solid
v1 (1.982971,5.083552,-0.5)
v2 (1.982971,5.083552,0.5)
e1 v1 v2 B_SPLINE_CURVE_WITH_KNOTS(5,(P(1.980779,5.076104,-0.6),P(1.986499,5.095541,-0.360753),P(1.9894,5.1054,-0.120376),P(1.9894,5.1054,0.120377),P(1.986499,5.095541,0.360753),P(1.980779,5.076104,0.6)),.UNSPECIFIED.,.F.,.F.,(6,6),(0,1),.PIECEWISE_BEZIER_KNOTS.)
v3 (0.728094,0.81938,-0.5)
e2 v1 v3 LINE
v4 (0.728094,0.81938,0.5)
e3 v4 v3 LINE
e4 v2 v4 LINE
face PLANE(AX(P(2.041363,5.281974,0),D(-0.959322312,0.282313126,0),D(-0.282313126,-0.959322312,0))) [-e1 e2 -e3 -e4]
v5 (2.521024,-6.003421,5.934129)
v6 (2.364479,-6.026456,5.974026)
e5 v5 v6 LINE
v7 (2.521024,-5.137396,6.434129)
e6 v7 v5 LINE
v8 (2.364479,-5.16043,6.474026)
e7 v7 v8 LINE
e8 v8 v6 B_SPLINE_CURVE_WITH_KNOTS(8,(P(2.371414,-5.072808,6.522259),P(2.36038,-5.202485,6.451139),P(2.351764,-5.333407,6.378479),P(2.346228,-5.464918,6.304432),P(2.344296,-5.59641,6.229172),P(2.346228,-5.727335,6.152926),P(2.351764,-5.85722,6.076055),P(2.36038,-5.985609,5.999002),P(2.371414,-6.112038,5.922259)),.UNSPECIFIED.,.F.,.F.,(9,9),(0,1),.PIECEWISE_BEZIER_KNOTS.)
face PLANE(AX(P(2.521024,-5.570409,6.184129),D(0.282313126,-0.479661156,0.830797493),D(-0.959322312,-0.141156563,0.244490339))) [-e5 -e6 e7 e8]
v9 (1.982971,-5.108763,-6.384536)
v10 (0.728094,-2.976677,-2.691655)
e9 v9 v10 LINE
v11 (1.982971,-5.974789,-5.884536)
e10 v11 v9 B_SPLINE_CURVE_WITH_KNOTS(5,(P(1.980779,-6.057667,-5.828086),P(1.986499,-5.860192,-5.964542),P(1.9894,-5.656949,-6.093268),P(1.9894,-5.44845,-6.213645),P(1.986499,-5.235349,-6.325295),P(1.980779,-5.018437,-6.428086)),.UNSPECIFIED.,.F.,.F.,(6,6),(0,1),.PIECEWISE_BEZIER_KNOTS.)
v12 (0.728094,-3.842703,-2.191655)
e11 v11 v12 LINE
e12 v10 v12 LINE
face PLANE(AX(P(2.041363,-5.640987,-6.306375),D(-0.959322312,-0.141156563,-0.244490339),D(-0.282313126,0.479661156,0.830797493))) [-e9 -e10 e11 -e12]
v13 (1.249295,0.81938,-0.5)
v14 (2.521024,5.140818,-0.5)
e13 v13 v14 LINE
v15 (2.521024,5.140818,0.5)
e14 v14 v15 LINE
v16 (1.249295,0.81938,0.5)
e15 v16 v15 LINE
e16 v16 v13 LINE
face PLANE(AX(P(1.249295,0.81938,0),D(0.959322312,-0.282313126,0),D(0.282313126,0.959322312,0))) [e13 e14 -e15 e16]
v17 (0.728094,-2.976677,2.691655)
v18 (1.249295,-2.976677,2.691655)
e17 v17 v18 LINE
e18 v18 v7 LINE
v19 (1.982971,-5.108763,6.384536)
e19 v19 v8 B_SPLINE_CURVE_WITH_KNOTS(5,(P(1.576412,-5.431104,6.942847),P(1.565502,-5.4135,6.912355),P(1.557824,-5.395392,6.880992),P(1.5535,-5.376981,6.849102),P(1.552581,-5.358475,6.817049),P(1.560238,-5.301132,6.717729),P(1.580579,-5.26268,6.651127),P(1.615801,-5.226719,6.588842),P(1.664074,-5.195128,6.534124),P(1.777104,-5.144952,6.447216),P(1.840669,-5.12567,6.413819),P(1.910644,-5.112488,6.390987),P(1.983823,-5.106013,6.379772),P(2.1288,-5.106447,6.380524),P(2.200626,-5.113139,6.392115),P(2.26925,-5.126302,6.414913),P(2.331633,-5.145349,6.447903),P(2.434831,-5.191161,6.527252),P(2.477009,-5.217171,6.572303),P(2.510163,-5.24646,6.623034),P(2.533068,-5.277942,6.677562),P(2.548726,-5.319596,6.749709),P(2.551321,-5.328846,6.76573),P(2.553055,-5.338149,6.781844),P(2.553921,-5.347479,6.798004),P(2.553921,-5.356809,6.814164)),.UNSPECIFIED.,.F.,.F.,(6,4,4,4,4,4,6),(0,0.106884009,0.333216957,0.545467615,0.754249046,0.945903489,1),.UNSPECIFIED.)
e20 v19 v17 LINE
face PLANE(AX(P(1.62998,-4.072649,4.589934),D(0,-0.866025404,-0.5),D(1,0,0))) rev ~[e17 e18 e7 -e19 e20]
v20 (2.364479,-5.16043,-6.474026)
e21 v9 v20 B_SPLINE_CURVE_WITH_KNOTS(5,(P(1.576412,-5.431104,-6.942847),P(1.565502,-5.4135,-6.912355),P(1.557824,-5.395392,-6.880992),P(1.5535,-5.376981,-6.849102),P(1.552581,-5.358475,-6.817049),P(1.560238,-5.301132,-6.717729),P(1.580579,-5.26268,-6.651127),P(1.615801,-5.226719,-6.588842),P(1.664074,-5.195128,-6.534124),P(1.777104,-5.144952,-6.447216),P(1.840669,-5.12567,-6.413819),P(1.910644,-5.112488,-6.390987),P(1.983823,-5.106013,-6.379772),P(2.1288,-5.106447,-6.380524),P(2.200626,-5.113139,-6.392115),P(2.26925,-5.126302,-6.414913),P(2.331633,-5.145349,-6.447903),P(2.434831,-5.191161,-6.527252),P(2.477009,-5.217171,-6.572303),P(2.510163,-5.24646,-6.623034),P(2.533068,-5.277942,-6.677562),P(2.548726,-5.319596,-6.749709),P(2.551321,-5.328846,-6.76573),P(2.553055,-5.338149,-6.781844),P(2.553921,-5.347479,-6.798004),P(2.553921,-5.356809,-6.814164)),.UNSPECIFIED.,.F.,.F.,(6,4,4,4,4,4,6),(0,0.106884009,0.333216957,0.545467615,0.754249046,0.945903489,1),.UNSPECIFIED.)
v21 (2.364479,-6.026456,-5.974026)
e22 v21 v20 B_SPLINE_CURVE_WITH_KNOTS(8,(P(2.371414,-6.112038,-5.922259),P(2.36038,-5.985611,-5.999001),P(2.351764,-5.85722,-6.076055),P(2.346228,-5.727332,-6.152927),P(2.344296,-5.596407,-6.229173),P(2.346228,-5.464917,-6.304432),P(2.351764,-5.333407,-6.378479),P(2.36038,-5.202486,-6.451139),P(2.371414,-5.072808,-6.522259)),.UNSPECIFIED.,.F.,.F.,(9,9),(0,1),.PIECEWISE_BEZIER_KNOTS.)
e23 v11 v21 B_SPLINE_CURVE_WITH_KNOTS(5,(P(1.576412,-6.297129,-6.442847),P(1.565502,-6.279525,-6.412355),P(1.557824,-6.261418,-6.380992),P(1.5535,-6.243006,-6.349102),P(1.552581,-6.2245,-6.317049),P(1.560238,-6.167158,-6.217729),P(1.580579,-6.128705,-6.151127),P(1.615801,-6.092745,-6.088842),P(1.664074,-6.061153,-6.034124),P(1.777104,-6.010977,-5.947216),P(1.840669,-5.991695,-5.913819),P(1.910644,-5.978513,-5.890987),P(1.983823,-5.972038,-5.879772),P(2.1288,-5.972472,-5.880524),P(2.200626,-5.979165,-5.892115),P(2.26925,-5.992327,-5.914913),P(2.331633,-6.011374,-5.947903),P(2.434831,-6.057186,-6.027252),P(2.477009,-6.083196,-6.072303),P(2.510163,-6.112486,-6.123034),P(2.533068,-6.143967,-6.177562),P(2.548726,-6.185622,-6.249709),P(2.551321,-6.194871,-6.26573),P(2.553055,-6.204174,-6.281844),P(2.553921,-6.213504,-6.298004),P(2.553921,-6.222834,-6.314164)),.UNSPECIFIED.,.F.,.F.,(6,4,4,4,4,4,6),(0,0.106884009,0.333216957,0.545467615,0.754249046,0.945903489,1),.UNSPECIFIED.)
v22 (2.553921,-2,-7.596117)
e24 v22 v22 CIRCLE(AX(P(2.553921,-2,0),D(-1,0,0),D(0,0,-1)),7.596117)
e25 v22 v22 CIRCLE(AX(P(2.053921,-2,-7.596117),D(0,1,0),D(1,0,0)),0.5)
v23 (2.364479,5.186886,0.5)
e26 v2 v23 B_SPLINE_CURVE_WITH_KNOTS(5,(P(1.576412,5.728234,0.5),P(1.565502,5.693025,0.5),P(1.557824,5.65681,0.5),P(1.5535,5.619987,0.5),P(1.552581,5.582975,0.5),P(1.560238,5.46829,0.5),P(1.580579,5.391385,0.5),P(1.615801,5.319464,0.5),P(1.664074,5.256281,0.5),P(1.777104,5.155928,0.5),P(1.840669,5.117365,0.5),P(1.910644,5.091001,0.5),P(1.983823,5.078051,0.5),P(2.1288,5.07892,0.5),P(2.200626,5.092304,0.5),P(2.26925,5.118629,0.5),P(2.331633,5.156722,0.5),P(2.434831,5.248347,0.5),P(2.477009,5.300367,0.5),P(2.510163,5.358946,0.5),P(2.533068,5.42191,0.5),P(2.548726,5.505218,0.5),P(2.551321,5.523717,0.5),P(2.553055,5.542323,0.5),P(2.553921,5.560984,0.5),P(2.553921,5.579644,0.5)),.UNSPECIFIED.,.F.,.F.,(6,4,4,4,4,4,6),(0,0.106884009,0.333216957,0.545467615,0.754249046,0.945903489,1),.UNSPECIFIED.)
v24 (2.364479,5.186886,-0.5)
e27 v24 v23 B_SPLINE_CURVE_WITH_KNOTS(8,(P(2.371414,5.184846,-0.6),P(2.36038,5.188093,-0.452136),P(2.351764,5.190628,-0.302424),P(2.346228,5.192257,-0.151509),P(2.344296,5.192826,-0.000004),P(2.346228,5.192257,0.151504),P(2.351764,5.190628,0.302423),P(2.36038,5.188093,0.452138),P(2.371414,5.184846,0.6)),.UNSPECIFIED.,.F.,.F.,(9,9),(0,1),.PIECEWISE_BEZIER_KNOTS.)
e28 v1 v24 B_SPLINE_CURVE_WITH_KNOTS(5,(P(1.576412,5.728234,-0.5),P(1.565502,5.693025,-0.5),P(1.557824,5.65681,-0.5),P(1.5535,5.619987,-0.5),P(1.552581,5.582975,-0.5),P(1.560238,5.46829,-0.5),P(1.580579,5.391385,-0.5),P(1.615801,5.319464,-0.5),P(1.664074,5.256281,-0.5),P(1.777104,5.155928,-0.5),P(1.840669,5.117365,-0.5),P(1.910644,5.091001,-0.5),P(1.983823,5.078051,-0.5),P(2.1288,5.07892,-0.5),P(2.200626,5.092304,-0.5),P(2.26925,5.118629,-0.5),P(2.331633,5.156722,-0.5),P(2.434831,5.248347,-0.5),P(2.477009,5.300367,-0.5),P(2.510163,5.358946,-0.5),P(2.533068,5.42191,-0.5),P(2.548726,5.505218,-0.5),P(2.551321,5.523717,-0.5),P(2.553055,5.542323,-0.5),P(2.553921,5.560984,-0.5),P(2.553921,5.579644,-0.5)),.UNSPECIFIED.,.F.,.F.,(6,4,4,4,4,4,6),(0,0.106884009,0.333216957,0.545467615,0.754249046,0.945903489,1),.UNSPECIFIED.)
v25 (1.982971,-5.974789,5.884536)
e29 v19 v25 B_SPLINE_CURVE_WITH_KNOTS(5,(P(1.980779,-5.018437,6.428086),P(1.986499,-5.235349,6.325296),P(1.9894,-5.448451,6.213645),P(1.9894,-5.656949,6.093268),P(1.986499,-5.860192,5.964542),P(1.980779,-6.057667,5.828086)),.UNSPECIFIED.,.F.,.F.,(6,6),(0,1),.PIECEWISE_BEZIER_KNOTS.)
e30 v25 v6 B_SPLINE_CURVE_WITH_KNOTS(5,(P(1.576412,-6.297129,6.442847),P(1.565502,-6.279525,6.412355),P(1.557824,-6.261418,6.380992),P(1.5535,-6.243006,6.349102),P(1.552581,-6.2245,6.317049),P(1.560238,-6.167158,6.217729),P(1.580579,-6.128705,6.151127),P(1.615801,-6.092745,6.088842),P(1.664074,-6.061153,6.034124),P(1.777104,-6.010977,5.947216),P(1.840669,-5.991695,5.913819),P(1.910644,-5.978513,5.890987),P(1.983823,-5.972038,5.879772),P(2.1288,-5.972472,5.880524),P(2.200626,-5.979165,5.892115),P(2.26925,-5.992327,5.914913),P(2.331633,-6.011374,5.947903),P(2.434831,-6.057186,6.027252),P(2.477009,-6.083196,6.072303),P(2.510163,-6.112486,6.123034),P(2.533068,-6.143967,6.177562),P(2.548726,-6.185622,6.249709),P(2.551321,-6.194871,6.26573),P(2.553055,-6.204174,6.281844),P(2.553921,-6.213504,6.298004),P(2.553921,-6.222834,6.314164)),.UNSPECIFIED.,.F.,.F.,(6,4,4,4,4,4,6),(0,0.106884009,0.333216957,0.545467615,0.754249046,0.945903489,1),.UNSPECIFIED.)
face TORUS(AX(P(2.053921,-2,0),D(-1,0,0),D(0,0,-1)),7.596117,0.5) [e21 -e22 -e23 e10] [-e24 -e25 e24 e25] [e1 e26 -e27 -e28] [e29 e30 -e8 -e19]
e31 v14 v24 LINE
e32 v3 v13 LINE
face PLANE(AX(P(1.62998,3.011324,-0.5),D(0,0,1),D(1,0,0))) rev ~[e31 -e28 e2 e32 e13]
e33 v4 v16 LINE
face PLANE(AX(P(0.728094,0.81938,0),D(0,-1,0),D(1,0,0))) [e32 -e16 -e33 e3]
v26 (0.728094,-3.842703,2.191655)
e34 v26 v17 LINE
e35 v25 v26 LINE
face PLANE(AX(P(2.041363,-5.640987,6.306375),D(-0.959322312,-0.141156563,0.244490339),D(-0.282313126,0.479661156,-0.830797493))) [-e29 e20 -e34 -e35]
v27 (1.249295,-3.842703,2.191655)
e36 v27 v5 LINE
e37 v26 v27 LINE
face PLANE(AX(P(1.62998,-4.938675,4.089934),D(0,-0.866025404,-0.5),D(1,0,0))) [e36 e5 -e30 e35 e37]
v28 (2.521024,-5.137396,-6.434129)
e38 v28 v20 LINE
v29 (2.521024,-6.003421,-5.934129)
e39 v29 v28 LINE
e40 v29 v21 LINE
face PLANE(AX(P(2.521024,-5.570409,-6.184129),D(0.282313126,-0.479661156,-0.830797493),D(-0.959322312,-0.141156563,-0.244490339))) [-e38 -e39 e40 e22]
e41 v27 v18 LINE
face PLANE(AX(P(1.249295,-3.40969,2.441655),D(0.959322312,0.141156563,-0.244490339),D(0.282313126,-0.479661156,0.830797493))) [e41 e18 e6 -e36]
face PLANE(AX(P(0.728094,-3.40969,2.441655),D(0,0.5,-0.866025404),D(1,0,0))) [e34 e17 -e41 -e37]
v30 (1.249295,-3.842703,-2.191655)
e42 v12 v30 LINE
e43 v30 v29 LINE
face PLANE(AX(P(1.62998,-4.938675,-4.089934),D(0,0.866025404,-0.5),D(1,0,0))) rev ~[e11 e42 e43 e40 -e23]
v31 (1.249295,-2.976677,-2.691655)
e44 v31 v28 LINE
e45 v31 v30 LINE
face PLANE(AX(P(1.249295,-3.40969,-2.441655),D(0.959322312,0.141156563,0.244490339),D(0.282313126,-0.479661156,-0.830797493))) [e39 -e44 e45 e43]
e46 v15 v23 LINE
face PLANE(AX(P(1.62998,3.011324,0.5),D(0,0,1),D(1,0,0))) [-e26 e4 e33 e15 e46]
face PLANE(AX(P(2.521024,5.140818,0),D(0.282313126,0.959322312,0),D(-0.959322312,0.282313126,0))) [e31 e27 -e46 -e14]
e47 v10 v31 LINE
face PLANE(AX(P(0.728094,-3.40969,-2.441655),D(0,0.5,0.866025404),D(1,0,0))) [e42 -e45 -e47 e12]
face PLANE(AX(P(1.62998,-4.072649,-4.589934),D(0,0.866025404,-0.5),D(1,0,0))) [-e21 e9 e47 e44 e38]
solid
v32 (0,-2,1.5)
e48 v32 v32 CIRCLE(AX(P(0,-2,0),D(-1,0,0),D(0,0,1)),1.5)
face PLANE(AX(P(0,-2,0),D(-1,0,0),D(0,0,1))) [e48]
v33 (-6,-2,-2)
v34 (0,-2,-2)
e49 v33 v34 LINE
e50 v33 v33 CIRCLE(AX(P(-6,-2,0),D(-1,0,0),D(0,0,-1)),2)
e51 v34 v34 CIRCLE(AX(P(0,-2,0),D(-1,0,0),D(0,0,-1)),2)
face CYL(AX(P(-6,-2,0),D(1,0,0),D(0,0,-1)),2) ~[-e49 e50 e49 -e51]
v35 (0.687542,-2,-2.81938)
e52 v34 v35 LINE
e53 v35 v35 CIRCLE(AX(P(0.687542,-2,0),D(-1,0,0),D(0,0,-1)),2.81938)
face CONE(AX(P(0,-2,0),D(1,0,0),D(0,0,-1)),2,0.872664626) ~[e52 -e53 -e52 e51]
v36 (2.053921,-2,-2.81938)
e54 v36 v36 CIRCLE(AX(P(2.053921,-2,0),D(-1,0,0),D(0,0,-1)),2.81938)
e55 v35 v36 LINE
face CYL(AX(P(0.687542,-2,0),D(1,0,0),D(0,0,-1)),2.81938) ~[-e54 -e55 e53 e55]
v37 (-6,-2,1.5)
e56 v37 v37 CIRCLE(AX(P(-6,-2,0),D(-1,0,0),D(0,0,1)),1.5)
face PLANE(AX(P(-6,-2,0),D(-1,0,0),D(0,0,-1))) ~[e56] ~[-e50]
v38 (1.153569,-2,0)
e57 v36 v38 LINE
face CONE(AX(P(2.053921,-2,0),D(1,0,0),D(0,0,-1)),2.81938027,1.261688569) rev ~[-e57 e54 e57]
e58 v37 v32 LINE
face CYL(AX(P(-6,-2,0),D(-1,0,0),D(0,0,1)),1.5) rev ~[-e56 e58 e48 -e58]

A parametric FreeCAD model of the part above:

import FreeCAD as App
import Part
import Sketcher

V = App.Vector
Q = App.Units.Quantity

doc = App.newDocument("Part")
body = doc.addObject("PartDesign::Body", "Body")

sketch1 = body.newObject("Sketcher::SketchObject", "Sketch")
sketch1.AttachmentSupport = (doc.getObject("XY_Plane"), [""])
sketch1.MapMode = "FlatFace"
sketch1.addGeometry(Part.LineSegment(V(0, 0, 0), V(-6, 0, 0)), False)
sketch1.addGeometry(Part.LineSegment(V(-6, 0, 0), V(-6, -2, 0)), False)
sketch1.addGeometry(Part.LineSegment(V(-6, -2, 0), V(1.2, -2, 0)), False)
sketch1.addGeometry(Part.LineSegment(V(1.2, -2, 0), V(2.1, 0.8, 0)), False)
sketch1.addGeometry(Part.LineSegment(V(2.1, 0.8, 0), V(0.7, 0.8, 0)), False)
sketch1.addGeometry(Part.LineSegment(V(0.7, 0.8, 0), V(0, 0, 0)), False)
sketch1.addGeometry(Part.LineSegment(V(2.1, -2, 0), V(-6, -2, 0)), True)
sketch1.addConstraint(Sketcher.Constraint("Coincident", 0, 2, 1, 1))
sketch1.addConstraint(Sketcher.Constraint("Coincident", 1, 2, 2, 1))
sketch1.addConstraint(Sketcher.Constraint("Coincident", 2, 2, 3, 1))
sketch1.addConstraint(Sketcher.Constraint("Coincident", 3, 2, 4, 1))
sketch1.addConstraint(Sketcher.Constraint("Coincident", 4, 2, 5, 1))
sketch1.addConstraint(Sketcher.Constraint("Coincident", 5, 2, 0, 1))
sketch1.addConstraint(Sketcher.Constraint("Horizontal", 0))
sketch1.addConstraint(Sketcher.Constraint("Vertical", 1))
sketch1.addConstraint(Sketcher.Constraint("Horizontal", 2))
sketch1.addConstraint(Sketcher.Constraint("Horizontal", 4))
sketch1.addConstraint(Sketcher.Constraint("Horizontal", 6))
sketch1.addConstraint(Sketcher.Constraint("Coincident", 5, 2, -1, 1))
sketch1.addConstraint(Sketcher.Constraint("Coincident", 6, 2, 1, 2))
sketch1.addConstraint(Sketcher.Constraint("Vertical", 3, 2, 6, 1))
sketch1.addConstraint(Sketcher.Constraint("DistanceX", 0, 2, 0, 1, Q("6 mm")))
sketch1.addConstraint(Sketcher.Constraint("DistanceY", 1, 2, 1, 1, Q("2 mm")))
sketch1.addConstraint(Sketcher.Constraint("Angle", 5, Q("-130 deg")))
sketch1.addConstraint(Sketcher.Constraint("DistanceX", 2, 1, 2, 2, Q("7.153569 mm")))
sketch1.addConstraint(Sketcher.Constraint("DistanceX", 4, 2, 4, 1, Q("1.36638 mm")))
sketch1.addConstraint(Sketcher.Constraint("DistanceX", 6, 2, 6, 1, Q("8.053921 mm")))
revolution = body.newObject("PartDesign::Revolution", "Revolution")
revolution.Profile = sketch1
revolution.ReferenceAxis = (sketch1, ["Axis0"])
revolution.Angle = 360

sketch2 = body.newObject("Sketcher::SketchObject", "Sketch001")
sketch2.AttachmentSupport = (doc.getObject("YZ_Plane"), [""])
sketch2.MapMode = "FlatFace"
sketch2.AttachmentOffset = App.Placement(V(0, 0, -6), App.Rotation())
sketch2.addGeometry(Part.Circle(V(-2, 0, 0), V(0, 0, 1), 1.5), False)
sketch2.addConstraint(Sketcher.Constraint("PointOnObject", 0, 3, -1))
sketch2.addConstraint(Sketcher.Constraint("Diameter", 0, Q("3 mm")))
sketch2.addConstraint(Sketcher.Constraint("DistanceX", 0, 3, -1, 1, Q("2 mm")))
pocket1 = body.newObject("PartDesign::Pocket", "Pocket")
pocket1.Profile = sketch2
pocket1.Length = 6
pocket1.Reversed = True
body2 = doc.addObject("PartDesign::Body", "Body001")

sketch3 = body2.newObject("Sketcher::SketchObject", "Sketch002")
sketch3.AttachmentSupport = (doc.getObject("XY_Plane001"), [""])
sketch3.MapMode = "FlatFace"
sketch3.addGeometry(Part.Circle(V(2.1, 5.6, 0), V(0, 0, 1), 0.5), False)
sketch3.addGeometry(Part.LineSegment(V(2.1, -2, 0), V(-7.9, -2, 0)), True)
sketch3.addConstraint(Sketcher.Constraint("Horizontal", 1))
sketch3.addConstraint(Sketcher.Constraint("Vertical", 0, 3, 1, 1))
sketch3.addConstraint(Sketcher.Constraint("Diameter", 0, Q("1 mm")))
sketch3.addConstraint(Sketcher.Constraint("DistanceX", 1, 2, 1, 1, Q("10 mm")))
sketch3.addConstraint(Sketcher.Constraint("DistanceY", 1, 1, -1, 1, Q("2 mm")))
sketch3.addConstraint(Sketcher.Constraint("DistanceX", -1, 1, 0, 3, Q("2.053921 mm")))
sketch3.addConstraint(Sketcher.Constraint("DistanceY", -1, 1, 0, 3, Q("5.596117 mm")))
revolution2 = body2.newObject("PartDesign::Revolution", "Revolution001")
revolution2.Profile = sketch3
revolution2.ReferenceAxis = (sketch3, ["Axis0"])
revolution2.Angle = 360

sketch4 = body2.newObject("Sketcher::SketchObject", "Sketch003")
sketch4.AttachmentSupport = (doc.getObject("XY_Plane001"), [""])
sketch4.MapMode = "FlatFace"
sketch4.addGeometry(Part.LineSegment(V(1.25, 0.82, 0), V(2.52, 5.14, 0)), False)
sketch4.addGeometry(Part.LineSegment(V(2.52, 5.14, 0), V(2.04, 5.28, 0)), False)
sketch4.addGeometry(Part.LineSegment(V(2.04, 5.28, 0), V(0.73, 0.82, 0)), False)
sketch4.addGeometry(Part.LineSegment(V(0.73, 0.82, 0), V(1.25, 0.82, 0)), False)
sketch4.addConstraint(Sketcher.Constraint("Coincident", 0, 2, 1, 1))
sketch4.addConstraint(Sketcher.Constraint("Coincident", 1, 2, 2, 1))
sketch4.addConstraint(Sketcher.Constraint("Coincident", 2, 2, 3, 1))
sketch4.addConstraint(Sketcher.Constraint("Coincident", 3, 2, 0, 1))
sketch4.addConstraint(Sketcher.Constraint("Horizontal", 3))
sketch4.addConstraint(Sketcher.Constraint("Perpendicular", 0, 1))
sketch4.addConstraint(Sketcher.Constraint("Perpendicular", 1, 2))
sketch4.addConstraint(Sketcher.Constraint("Distance", 1, Q("0.5 mm")))
sketch4.addConstraint(Sketcher.Constraint("DistanceX", 3, 1, 3, 2, Q("0.521201 mm")))
sketch4.addConstraint(Sketcher.Constraint("Distance", 2, Q("4.651819 mm")))
sketch4.addConstraint(Sketcher.Constraint("DistanceY", -1, 1, 2, 2, Q("0.81938 mm")))
sketch4.addConstraint(Sketcher.Constraint("DistanceX", -1, 1, 0, 2, Q("2.521024 mm")))
pad1 = body2.newObject("PartDesign::Pad", "Pad")
pad1.Profile = sketch4
pad1.Length = 1
pad1.Midplane = True
doc.recompute()

datumline = body2.newObject("PartDesign::Line", "DatumLine")
datumline.Placement = App.Placement(V(0, -2, 0), App.Rotation(V(0, 0, 1), V(1, 0, 0)))
polarpattern = body2.newObject("PartDesign::PolarPattern", "PolarPattern")
polarpattern.Originals = [pad1]
polarpattern.Axis = (datumline, [""])
polarpattern.Angle = 360
polarpattern.Occurrences = 3
body2.Tip = polarpattern

doc.recompute()
